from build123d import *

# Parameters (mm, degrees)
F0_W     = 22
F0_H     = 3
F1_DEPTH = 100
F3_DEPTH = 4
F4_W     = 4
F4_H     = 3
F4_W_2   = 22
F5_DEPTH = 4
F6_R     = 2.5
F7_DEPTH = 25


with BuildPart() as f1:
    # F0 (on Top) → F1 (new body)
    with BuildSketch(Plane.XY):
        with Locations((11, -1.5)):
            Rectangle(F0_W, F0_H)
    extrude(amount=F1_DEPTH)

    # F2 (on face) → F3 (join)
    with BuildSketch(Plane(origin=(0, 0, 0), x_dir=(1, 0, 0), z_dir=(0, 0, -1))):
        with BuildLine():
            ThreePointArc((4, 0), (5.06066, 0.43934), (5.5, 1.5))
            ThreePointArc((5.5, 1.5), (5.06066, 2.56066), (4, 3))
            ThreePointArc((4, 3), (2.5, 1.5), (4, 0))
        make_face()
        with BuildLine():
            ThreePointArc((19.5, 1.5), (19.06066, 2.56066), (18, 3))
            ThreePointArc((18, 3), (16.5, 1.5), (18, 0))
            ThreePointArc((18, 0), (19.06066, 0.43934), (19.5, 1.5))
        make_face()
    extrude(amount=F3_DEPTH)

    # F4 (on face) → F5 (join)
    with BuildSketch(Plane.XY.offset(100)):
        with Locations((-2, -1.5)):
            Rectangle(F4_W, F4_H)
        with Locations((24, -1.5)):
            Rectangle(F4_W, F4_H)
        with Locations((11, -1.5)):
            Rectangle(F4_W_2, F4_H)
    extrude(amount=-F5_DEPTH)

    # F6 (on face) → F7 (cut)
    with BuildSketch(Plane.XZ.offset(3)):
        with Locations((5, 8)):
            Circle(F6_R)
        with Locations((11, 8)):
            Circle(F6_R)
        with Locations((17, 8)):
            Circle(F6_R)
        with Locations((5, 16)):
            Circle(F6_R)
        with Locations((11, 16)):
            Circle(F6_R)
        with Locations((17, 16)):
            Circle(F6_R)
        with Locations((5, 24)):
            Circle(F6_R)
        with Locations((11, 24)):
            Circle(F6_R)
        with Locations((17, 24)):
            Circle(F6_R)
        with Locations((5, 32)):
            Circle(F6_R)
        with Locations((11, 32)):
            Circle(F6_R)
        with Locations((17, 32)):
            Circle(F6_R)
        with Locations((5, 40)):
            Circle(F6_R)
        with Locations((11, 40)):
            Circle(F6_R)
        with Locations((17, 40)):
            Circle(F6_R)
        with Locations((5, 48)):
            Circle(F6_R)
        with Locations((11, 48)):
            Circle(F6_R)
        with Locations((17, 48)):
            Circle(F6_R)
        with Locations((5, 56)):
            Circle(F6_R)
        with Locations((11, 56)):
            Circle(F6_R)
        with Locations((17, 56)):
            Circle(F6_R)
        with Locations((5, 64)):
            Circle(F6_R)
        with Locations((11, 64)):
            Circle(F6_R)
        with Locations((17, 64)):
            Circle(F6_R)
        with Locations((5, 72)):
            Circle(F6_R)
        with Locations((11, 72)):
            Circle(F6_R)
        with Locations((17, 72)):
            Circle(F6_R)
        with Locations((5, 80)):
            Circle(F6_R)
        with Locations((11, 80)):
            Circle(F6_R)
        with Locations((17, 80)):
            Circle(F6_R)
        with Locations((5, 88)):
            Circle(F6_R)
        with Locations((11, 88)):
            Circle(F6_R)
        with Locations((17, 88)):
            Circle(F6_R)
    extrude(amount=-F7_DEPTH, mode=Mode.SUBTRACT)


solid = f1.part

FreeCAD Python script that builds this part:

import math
import FreeCAD as App
import Part
import Sketcher
from FreeCAD import Vector
Q = App.Units.Quantity

doc = App.newDocument("Part")
body = doc.addObject("PartDesign::Body", "Body")

sketch1 = doc.addObject("Sketcher::SketchObject", "Sketch")
body.addObject(sketch1)
sketch1.AttachmentSupport = (doc.XY_Plane, [""])
sketch1.MapMode = "FlatFace"
sketch1.addGeometry(Part.LineSegment(Vector(0, 0, 0), Vector(0, -3, 0)), False)
sketch1.addGeometry(Part.LineSegment(Vector(0, -3, 0), Vector(22, -3, 0)), False)
sketch1.addGeometry(Part.LineSegment(Vector(22, -3, 0), Vector(22, 0, 0)), False)
sketch1.addGeometry(Part.LineSegment(Vector(22, 0, 0), Vector(0, 0, 0)), False)
sketch1.addConstraint(Sketcher.Constraint("Coincident", 0, 2, 1, 1))
sketch1.addConstraint(Sketcher.Constraint("Coincident", 1, 2, 2, 1))
sketch1.addConstraint(Sketcher.Constraint("Coincident", 2, 2, 3, 1))
sketch1.addConstraint(Sketcher.Constraint("Coincident", 3, 2, 0, 1))
sketch1.addConstraint(Sketcher.Constraint("Vertical", 0))
sketch1.addConstraint(Sketcher.Constraint("Horizontal", 1))
sketch1.addConstraint(Sketcher.Constraint("Vertical", 2))
sketch1.addConstraint(Sketcher.Constraint("Horizontal", 3))
sketch1.addConstraint(Sketcher.Constraint("Coincident", 3, 2, -1, 1))
sketch1.addConstraint(Sketcher.Constraint("DistanceX", 1, 1, 1, 2, Q("22 mm")))
sketch1.addConstraint(Sketcher.Constraint("DistanceY", 0, 2, 0, 1, Q("3 mm")))
pad1 = doc.addObject("PartDesign::Pad", "Pad")
body.addObject(pad1)
pad1.Profile = sketch1
pad1.Length = 100

sketch2 = doc.addObject("Sketcher::SketchObject", "Sketch001")
body.addObject(sketch2)
sketch2.AttachmentSupport = (doc.XY_Plane, [""])
sketch2.MapMode = "FlatFace"
sketch2.addGeometry(Part.ArcOfCircle(Part.Circle(Vector(4, -1.5, 0), Vector(0, 0, 1), 1.5), math.radians(0), math.radians(90)), False)
sketch2.addGeometry(Part.ArcOfCircle(Part.Circle(Vector(4, -1.5, 0), Vector(0, 0, 1), 1.5), math.radians(-90), math.radians(0)), False)
sketch2.addGeometry(Part.ArcOfCircle(Part.Circle(Vector(4, -1.5, 0), Vector(0, 0, 1), 1.5), math.radians(90), math.radians(270)), False)
sketch2.addGeometry(Part.ArcOfCircle(Part.Circle(Vector(18, -1.5, 0), Vector(0, 0, 1), 1.5), math.radians(-90), math.radians(0)), False)
sketch2.addGeometry(Part.ArcOfCircle(Part.Circle(Vector(18, -1.5, 0), Vector(0, 0, 1), 1.5), math.radians(90), math.radians(270)), False)
sketch2.addGeometry(Part.ArcOfCircle(Part.Circle(Vector(18, -1.5, 0), Vector(0, 0, 1), 1.5), math.radians(0), math.radians(90)), False)
sketch2.addConstraint(Sketcher.Constraint("Tangent", 0, 1, 1, 2))
sketch2.addConstraint(Sketcher.Constraint("Tangent", 1, 1, 2, 2))
sketch2.addConstraint(Sketcher.Constraint("Tangent", 2, 1, 0, 2))
sketch2.addConstraint(Sketcher.Constraint("Tangent", 3, 1, 4, 2))
sketch2.addConstraint(Sketcher.Constraint("Tangent", 4, 1, 5, 2))
sketch2.addConstraint(Sketcher.Constraint("Tangent", 5, 1, 3, 2))
sketch2.addConstraint(Sketcher.Constraint("Equal", 2, 3))
sketch2.addConstraint(Sketcher.Constraint("PointOnObject", 2, 1, -1))
sketch2.addConstraint(Sketcher.Constraint("PointOnObject", 4, 1, -1))
sketch2.addConstraint(Sketcher.Constraint("Horizontal", 5, 3, 0, 1))
sketch2.addConstraint(Sketcher.Constraint("Horizontal", 0, 1, 5, 1))
sketch2.addConstraint(Sketcher.Constraint("Vertical", 2, 3, 1, 1))
sketch2.addConstraint(Sketcher.Constraint("Vertical", 1, 1, 2, 1))
sketch2.addConstraint(Sketcher.Constraint("Vertical", 5, 3, 3, 1))
sketch2.addConstraint(Sketcher.Constraint("Vertical", 3, 1, 4, 1))
sketch2.addConstraint(Sketcher.Constraint("Radius", 0, Q("1.500001 mm")))
sketch2.addConstraint(Sketcher.Constraint("DistanceX", -1, 1, 0, 3, Q("3.999999 mm")))
sketch2.addConstraint(Sketcher.Constraint("DistanceX", -1, 1, 3, 3, Q("17.999999 mm")))
pad2 = doc.addObject("PartDesign::Pad", "Pad001")
body.addObject(pad2)
pad2.Profile = sketch2
pad2.Length = 4
pad2.Reversed = True

sketch3 = doc.addObject("Sketcher::SketchObject", "Sketch002")
body.addObject(sketch3)
sketch3.AttachmentSupport = (doc.XY_Plane, [""])
sketch3.MapMode = "FlatFace"
sketch3.AttachmentOffset = App.Placement(Vector(0, 0, 100), App.Rotation())
sketch3.addGeometry(Part.LineSegment(Vector(-4, 0, 0), Vector(-4, -3, 0)), False)
sketch3.addGeometry(Part.LineSegment(Vector(-4, -3, 0), Vector(26, -3, 0)), False)
sketch3.addGeometry(Part.LineSegment(Vector(26, -3, 0), Vector(26, 0, 0)), False)
sketch3.addGeometry(Part.LineSegment(Vector(26, 0, 0), Vector(-4, 0, 0)), False)
sketch3.addConstraint(Sketcher.Constraint("Coincident", 0, 2, 1, 1))
sketch3.addConstraint(Sketcher.Constraint("Coincident", 1, 2, 2, 1))
sketch3.addConstraint(Sketcher.Constraint("Coincident", 2, 2, 3, 1))
sketch3.addConstraint(Sketcher.Constraint("Coincident", 3, 2, 0, 1))
sketch3.addConstraint(Sketcher.Constraint("Vertical", 0))
sketch3.addConstraint(Sketcher.Constraint("Horizontal", 1))
sketch3.addConstraint(Sketcher.Constraint("Vertical", 2))
sketch3.addConstraint(Sketcher.Constraint("Horizontal", 3))
sketch3.addConstraint(Sketcher.Constraint("PointOnObject", 2, 2, -1))
sketch3.addConstraint(Sketcher.Constraint("DistanceX", 1, 1, 1, 2, Q("30 mm")))
sketch3.addConstraint(Sketcher.Constraint("DistanceY", 0, 2, 0, 1, Q("3 mm")))
sketch3.addConstraint(Sketcher.Constraint("DistanceX", 0, 2, -1, 1, Q("4 mm")))
pad3 = doc.addObject("PartDesign::Pad", "Pad002")
body.addObject(pad3)
pad3.Profile = sketch3
pad3.Length = 4
pad3.Reversed = True

sketch4 = doc.addObject("Sketcher::SketchObject", "Sketch003")
body.addObject(sketch4)
sketch4.AttachmentSupport = (doc.XZ_Plane, [""])
sketch4.MapMode = "FlatFace"
sketch4.AttachmentOffset = App.Placement(Vector(0, 0, 3), App.Rotation())
sketch4.addGeometry(Part.Circle(Vector(5, 8, 0), Vector(0, 0, 1), 2.5), False)
sketch4.addGeometry(Part.Circle(Vector(11, 8, 0), Vector(0, 0, 1), 2.5), False)
sketch4.addGeometry(Part.Circle(Vector(17, 8, 0), Vector(0, 0, 1), 2.5), False)
sketch4.addGeometry(Part.Circle(Vector(5, 16, 0), Vector(0, 0, 1), 2.5), False)
sketch4.addGeometry(Part.Circle(Vector(11, 16, 0), Vector(0, 0, 1), 2.5), False)
sketch4.addGeometry(Part.Circle(Vector(17, 16, 0), Vector(0, 0, 1), 2.5), False)
sketch4.addGeometry(Part.Circle(Vector(5, 24, 0), Vector(0, 0, 1), 2.5), False)
sketch4.addGeometry(Part.Circle(Vector(11, 24, 0), Vector(0, 0, 1), 2.5), False)
sketch4.addGeometry(Part.Circle(Vector(17, 24, 0), Vector(0, 0, 1), 2.5), False)
sketch4.addGeometry(Part.Circle(Vector(5, 32, 0), Vector(0, 0, 1), 2.5), False)
sketch4.addGeometry(Part.Circle(Vector(11, 32, 0), Vector(0, 0, 1), 2.5), False)
sketch4.addGeometry(Part.Circle(Vector(17, 32, 0), Vector(0, 0, 1), 2.5), False)
sketch4.addGeometry(Part.Circle(Vector(5, 40, 0), Vector(0, 0, 1), 2.5), False)
sketch4.addGeometry(Part.Circle(Vector(11, 40, 0), Vector(0, 0, 1), 2.5), False)
sketch4.addGeometry(Part.Circle(Vector(17, 40, 0), Vector(0, 0, 1), 2.5), False)
sketch4.addGeometry(Part.Circle(Vector(5, 48, 0), Vector(0, 0, 1), 2.5), False)
sketch4.addGeometry(Part.Circle(Vector(11, 48, 0), Vector(0, 0, 1), 2.5), False)
sketch4.addGeometry(Part.Circle(Vector(17, 48, 0), Vector(0, 0, 1), 2.5), False)
sketch4.addGeometry(Part.Circle(Vector(5, 56, 0), Vector(0, 0, 1), 2.5), False)
sketch4.addGeometry(Part.Circle(Vector(11, 56, 0), Vector(0, 0, 1), 2.5), False)
sketch4.addGeometry(Part.Circle(Vector(17, 56, 0), Vector(0, 0, 1), 2.5), False)
sketch4.addGeometry(Part.Circle(Vector(5, 64, 0), Vector(0, 0, 1), 2.5), False)
sketch4.addGeometry(Part.Circle(Vector(11, 64, 0), Vector(0, 0, 1), 2.5), False)
sketch4.addGeometry(Part.Circle(Vector(17, 64, 0), Vector(0, 0, 1), 2.5), False)
sketch4.addGeometry(Part.Circle(Vector(5, 72, 0), Vector(0, 0, 1), 2.5), False)
sketch4.addGeometry(Part.Circle(Vector(11, 72, 0), Vector(0, 0, 1), 2.5), False)
sketch4.addGeometry(Part.Circle(Vector(17, 72, 0), Vector(0, 0, 1), 2.5), False)
sketch4.addGeometry(Part.Circle(Vector(5, 80, 0), Vector(0, 0, 1), 2.5), False)
sketch4.addGeometry(Part.Circle(Vector(11, 80, 0), Vector(0, 0, 1), 2.5), False)
sketch4.addGeometry(Part.Circle(Vector(17, 80, 0), Vector(0, 0, 1), 2.5), False)
sketch4.addGeometry(Part.Circle(Vector(5, 88, 0), Vector(0, 0, 1), 2.5), False)
sketch4.addGeometry(Part.Circle(Vector(11, 88, 0), Vector(0, 0, 1), 2.5), False)
sketch4.addGeometry(Part.Circle(Vector(17, 88, 0), Vector(0, 0, 1), 2.5), False)
sketch4.addConstraint(Sketcher.Constraint("Equal", 0, 1))
sketch4.addConstraint(Sketcher.Constraint("Equal", 1, 2))
sketch4.addConstraint(Sketcher.Constraint("Equal", 2, 3))
sketch4.addConstraint(Sketcher.Constraint("Equal", 3, 4))
sketch4.addConstraint(Sketcher.Constraint("Equal", 4, 5))
sketch4.addConstraint(Sketcher.Constraint("Equal", 5, 6))
sketch4.addConstraint(Sketcher.Constraint("Equal", 6, 7))
sketch4.addConstraint(Sketcher.Constraint("Equal", 7, 8))
sketch4.addConstraint(Sketcher.Constraint("Equal", 8, 9))
sketch4.addConstraint(Sketcher.Constraint("Equal", 9, 10))
sketch4.addConstraint(Sketcher.Constraint("Equal", 10, 11))
sketch4.addConstraint(Sketcher.Constraint("Equal", 11, 12))
sketch4.addConstraint(Sketcher.Constraint("Equal", 12, 13))
sketch4.addConstraint(Sketcher.Constraint("Equal", 13, 14))
sketch4.addConstraint(Sketcher.Constraint("Equal", 14, 15))
sketch4.addConstraint(Sketcher.Constraint("Equal", 15, 16))
sketch4.addConstraint(Sketcher.Constraint("Equal", 16, 17))
sketch4.addConstraint(Sketcher.Constraint("Equal", 17, 18))
sketch4.addConstraint(Sketcher.Constraint("Equal", 18, 19))
sketch4.addConstraint(Sketcher.Constraint("Equal", 19, 20))
sketch4.addConstraint(Sketcher.Constraint("Equal", 20, 21))
sketch4.addConstraint(Sketcher.Constraint("Equal", 21, 22))
sketch4.addConstraint(Sketcher.Constraint("Equal", 22, 23))
sketch4.addConstraint(Sketcher.Constraint("Equal", 23, 24))
sketch4.addConstraint(Sketcher.Constraint("Equal", 24, 25))
sketch4.addConstraint(Sketcher.Constraint("Equal", 25, 26))
sketch4.addConstraint(Sketcher.Constraint("Equal", 26, 27))
sketch4.addConstraint(Sketcher.Constraint("Equal", 27, 28))
sketch4.addConstraint(Sketcher.Constraint("Equal", 28, 29))
sketch4.addConstraint(Sketcher.Constraint("Equal", 29, 30))
sketch4.addConstraint(Sketcher.Constraint("Equal", 30, 31))
sketch4.addConstraint(Sketcher.Constraint("Equal", 31, 32))
sketch4.addConstraint(Sketcher.Constraint("Horizontal", 0, 3, 1, 3))
sketch4.addConstraint(Sketcher.Constraint("Horizontal", 1, 3, 2, 3))
sketch4.addConstraint(Sketcher.Constraint("Horizontal", 3, 3, 4, 3))
sketch4.addConstraint(Sketcher.Constraint("Horizontal", 4, 3, 5, 3))
sketch4.addConstraint(Sketcher.Constraint("Horizontal", 6, 3, 7, 3))
sketch4.addConstraint(Sketcher.Constraint("Horizontal", 7, 3, 8, 3))
sketch4.addConstraint(Sketcher.Constraint("Horizontal", 9, 3, 10, 3))
sketch4.addConstraint(Sketcher.Constraint("Horizontal", 10, 3, 11, 3))
sketch4.addConstraint(Sketcher.Constraint("Horizontal", 12, 3, 13, 3))
sketch4.addConstraint(Sketcher.Constraint("Horizontal", 13, 3, 14, 3))
sketch4.addConstraint(Sketcher.Constraint("Horizontal", 15, 3, 16, 3))
sketch4.addConstraint(Sketcher.Constraint("Horizontal", 16, 3, 17, 3))
sketch4.addConstraint(Sketcher.Constraint("Horizontal", 18, 3, 19, 3))
sketch4.addConstraint(Sketcher.Constraint("Horizontal", 19, 3, 20, 3))
sketch4.addConstraint(Sketcher.Constraint("Horizontal", 21, 3, 22, 3))
sketch4.addConstraint(Sketcher.Constraint("Horizontal", 22, 3, 23, 3))
sketch4.addConstraint(Sketcher.Constraint("Horizontal", 24, 3, 25, 3))
sketch4.addConstraint(Sketcher.Constraint("Horizontal", 25, 3, 26, 3))
sketch4.addConstraint(Sketcher.Constraint("Horizontal", 27, 3, 28, 3))
sketch4.addConstraint(Sketcher.Constraint("Horizontal", 28, 3, 29, 3))
sketch4.addConstraint(Sketcher.Constraint("Horizontal", 30, 3, 31, 3))
sketch4.addConstraint(Sketcher.Constraint("Horizontal", 31, 3, 32, 3))
sketch4.addConstraint(Sketcher.Constraint("Vertical", 0, 3, 3, 3))
sketch4.addConstraint(Sketcher.Constraint("Vertical", 1, 3, 4, 3))
sketch4.addConstraint(Sketcher.Constraint("Vertical", 2, 3, 5, 3))
sketch4.addConstraint(Sketcher.Constraint("Vertical", 3, 3, 6, 3))
sketch4.addConstraint(Sketcher.Constraint("Vertical", 4, 3, 7, 3))
sketch4.addConstraint(Sketcher.Constraint("Vertical", 5, 3, 8, 3))
sketch4.addConstraint(Sketcher.Constraint("Vertical", 6, 3, 9, 3))
sketch4.addConstraint(Sketcher.Constraint("Vertical", 7, 3, 10, 3))
sketch4.addConstraint(Sketcher.Constraint("Vertical", 8, 3, 11, 3))
sketch4.addConstraint(Sketcher.Constraint("Vertical", 9, 3, 12, 3))
sketch4.addConstraint(Sketcher.Constraint("Vertical", 10, 3, 13, 3))
sketch4.addConstraint(Sketcher.Constraint("Vertical", 11, 3, 14, 3))
sketch4.addConstraint(Sketcher.Constraint("Vertical", 12, 3, 15, 3))
sketch4.addConstraint(Sketcher.Constraint("Vertical", 13, 3, 16, 3))
sketch4.addConstraint(Sketcher.Constraint("Vertical", 14, 3, 17, 3))
sketch4.addConstraint(Sketcher.Constraint("Vertical", 15, 3, 18, 3))
sketch4.addConstraint(Sketcher.Constraint("Vertical", 16, 3, 19, 3))
sketch4.addConstraint(Sketcher.Constraint("Vertical", 17, 3, 20, 3))
sketch4.addConstraint(Sketcher.Constraint("Vertical", 18, 3, 21, 3))
sketch4.addConstraint(Sketcher.Constraint("Vertical", 19, 3, 22, 3))
sketch4.addConstraint(Sketcher.Constraint("Vertical", 20, 3, 23, 3))
sketch4.addConstraint(Sketcher.Constraint("Vertical", 21, 3, 24, 3))
sketch4.addConstraint(Sketcher.Constraint("Vertical", 22, 3, 25, 3))
sketch4.addConstraint(Sketcher.Constraint("Vertical", 23, 3, 26, 3))
sketch4.addConstraint(Sketcher.Constraint("Vertical", 24, 3, 27, 3))
sketch4.addConstraint(Sketcher.Constraint("Vertical", 25, 3, 28, 3))
sketch4.addConstraint(Sketcher.Constraint("Vertical", 26, 3, 29, 3))
sketch4.addConstraint(Sketcher.Constraint("Vertical", 27, 3, 30, 3))
sketch4.addConstraint(Sketcher.Constraint("Vertical", 28, 3, 31, 3))
sketch4.addConstraint(Sketcher.Constraint("Vertical", 29, 3, 32, 3))
sketch4.addConstraint(Sketcher.Constraint("Diameter", 0, Q("5 mm")))
sketch4.addConstraint(Sketcher.Constraint("DistanceX", -1, 1, 0, 3, Q("5 mm")))
sketch4.addConstraint(Sketcher.Constraint("DistanceY", -1, 1, 0, 3, Q("8 mm")))
sketch4.addConstraint(Sketcher.Constraint("DistanceX", -1, 1, 1, 3, Q("11 mm")))
sketch4.addConstraint(Sketcher.Constraint("DistanceX", -1, 1, 2, 3, Q("17 mm")))
sketch4.addConstraint(Sketcher.Constraint("DistanceY", -1, 1, 3, 3, Q("16 mm")))
sketch4.addConstraint(Sketcher.Constraint("DistanceY", -1, 1, 6, 3, Q("24 mm")))
sketch4.addConstraint(Sketcher.Constraint("DistanceY", -1, 1, 9, 3, Q("32 mm")))
sketch4.addConstraint(Sketcher.Constraint("DistanceY", -1, 1, 12, 3, Q("40 mm")))
sketch4.addConstraint(Sketcher.Constraint("DistanceY", -1, 1, 15, 3, Q("48 mm")))
sketch4.addConstraint(Sketcher.Constraint("DistanceY", -1, 1, 18, 3, Q("56 mm")))
sketch4.addConstraint(Sketcher.Constraint("DistanceY", -1, 1, 21, 3, Q("64 mm")))
sketch4.addConstraint(Sketcher.Constraint("DistanceY", -1, 1, 24, 3, Q("72 mm")))
sketch4.addConstraint(Sketcher.Constraint("DistanceY", -1, 1, 27, 3, Q("80 mm")))
sketch4.addConstraint(Sketcher.Constraint("DistanceY", -1, 1, 30, 3, Q("88 mm")))
pocket1 = doc.addObject("PartDesign::Pocket", "Pocket")
body.addObject(pocket1)
pocket1.Profile = sketch4
pocket1.Length = 25

doc.recompute()
